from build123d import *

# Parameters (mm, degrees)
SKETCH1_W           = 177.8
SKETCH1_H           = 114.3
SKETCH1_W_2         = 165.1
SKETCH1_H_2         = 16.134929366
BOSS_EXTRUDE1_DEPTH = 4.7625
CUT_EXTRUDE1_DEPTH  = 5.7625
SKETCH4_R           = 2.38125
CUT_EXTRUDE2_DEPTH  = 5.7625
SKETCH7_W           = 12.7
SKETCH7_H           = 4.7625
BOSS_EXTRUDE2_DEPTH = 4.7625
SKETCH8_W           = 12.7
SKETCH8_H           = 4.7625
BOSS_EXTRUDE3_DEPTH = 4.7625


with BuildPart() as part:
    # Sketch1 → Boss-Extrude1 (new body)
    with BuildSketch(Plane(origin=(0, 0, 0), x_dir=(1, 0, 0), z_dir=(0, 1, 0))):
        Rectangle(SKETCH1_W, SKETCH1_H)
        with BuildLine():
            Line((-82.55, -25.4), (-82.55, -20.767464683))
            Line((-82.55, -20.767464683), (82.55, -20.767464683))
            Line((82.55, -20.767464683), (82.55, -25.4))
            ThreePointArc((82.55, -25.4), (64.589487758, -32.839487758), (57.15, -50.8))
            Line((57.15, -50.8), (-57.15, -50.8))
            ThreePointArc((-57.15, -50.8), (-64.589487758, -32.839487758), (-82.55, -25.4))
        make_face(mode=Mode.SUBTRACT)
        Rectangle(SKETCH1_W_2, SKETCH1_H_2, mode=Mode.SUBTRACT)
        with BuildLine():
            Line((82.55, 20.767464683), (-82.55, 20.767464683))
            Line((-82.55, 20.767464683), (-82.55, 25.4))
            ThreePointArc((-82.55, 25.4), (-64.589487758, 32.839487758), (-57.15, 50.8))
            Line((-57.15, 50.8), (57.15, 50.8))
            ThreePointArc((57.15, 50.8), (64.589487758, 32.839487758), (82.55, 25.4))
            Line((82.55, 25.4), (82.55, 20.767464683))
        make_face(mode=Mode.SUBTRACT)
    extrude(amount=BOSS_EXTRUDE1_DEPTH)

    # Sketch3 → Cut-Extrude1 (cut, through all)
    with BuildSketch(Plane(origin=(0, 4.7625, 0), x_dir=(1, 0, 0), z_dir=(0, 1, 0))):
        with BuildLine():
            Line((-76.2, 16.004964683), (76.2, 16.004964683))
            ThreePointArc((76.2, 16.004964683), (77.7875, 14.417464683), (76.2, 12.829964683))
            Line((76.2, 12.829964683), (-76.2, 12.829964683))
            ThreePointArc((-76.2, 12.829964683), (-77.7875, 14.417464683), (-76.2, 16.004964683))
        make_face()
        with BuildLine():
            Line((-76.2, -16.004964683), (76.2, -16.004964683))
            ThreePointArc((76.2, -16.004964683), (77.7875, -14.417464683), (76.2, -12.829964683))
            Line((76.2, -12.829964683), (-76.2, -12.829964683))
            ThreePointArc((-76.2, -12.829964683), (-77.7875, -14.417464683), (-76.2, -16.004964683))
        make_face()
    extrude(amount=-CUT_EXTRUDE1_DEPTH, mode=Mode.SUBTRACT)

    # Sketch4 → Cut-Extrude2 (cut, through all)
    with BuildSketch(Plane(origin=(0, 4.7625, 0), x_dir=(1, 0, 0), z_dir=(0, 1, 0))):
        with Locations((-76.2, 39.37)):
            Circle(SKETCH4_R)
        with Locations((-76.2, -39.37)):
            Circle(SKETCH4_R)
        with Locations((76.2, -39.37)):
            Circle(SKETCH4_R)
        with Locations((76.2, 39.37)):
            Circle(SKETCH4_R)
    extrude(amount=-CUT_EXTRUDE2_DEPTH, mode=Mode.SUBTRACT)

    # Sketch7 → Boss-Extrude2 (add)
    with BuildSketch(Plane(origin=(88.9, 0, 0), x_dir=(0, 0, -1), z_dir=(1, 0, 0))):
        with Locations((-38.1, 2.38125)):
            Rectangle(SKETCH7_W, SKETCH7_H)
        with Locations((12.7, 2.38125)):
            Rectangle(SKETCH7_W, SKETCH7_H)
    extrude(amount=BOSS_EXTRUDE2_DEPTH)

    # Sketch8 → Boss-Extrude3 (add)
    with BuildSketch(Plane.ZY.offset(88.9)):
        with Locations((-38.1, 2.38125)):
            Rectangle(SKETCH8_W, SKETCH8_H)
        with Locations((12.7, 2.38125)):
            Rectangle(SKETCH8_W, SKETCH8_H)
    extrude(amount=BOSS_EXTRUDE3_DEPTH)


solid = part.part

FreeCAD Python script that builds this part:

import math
import FreeCAD as App
import Part
import Sketcher
Q = App.Units.Quantity


def add_polygon(sketch, points):
    """Adds a closed chain of lines whose ends are joined by coincident constraints."""
    first, n = sketch.GeometryCount, len(points)
    for a, b in zip(points, points[1:] + points[:1]):
        sketch.addGeometry(Part.LineSegment(App.Vector(*a, 0), App.Vector(*b, 0)), False)
    for i in range(n):
        sketch.addConstraint(Sketcher.Constraint("Coincident", first + i, 2, first + (i + 1) % n, 1))

doc = App.newDocument("Part")
body = doc.addObject("PartDesign::Body", "Body")

sketch1 = doc.addObject("Sketcher::SketchObject", "Sketch")
body.addObject(sketch1)
sketch1.AttachmentSupport = (doc.XZ_Plane, [""])
sketch1.MapMode = "FlatFace"
add_polygon(sketch1, [(-88.9, -57.1), (-88.9, 57.1), (88.9, 57.1), (88.9, -57.1)])
sketch1.addGeometry(Part.ArcOfCircle(Part.Circle(App.Vector(-82.5, 50.8, 0), App.Vector(0, 0, 1), 25.4), math.radians(-90), math.radians(0)), False)
sketch1.addGeometry(Part.LineSegment(App.Vector(-82.5, 25.4, 0), App.Vector(-82.5, 20.8, 0)), False)
sketch1.addGeometry(Part.LineSegment(App.Vector(-82.5, 20.8, 0), App.Vector(82.5, 20.8, 0)), False)
sketch1.addGeometry(Part.LineSegment(App.Vector(82.5, 20.8, 0), App.Vector(82.5, 25.4, 0)), False)
sketch1.addGeometry(Part.ArcOfCircle(Part.Circle(App.Vector(82.5, 50.8, 0), App.Vector(0, 0, 1), 25.4), math.radians(180), math.radians(270)), False)
sketch1.addGeometry(Part.LineSegment(App.Vector(57.1, 50.8, 0), App.Vector(-57.1, 50.8, 0)), False)
add_polygon(sketch1, [(82.5, 8.1), (-82.5, 8.1), (-82.5, -8.1), (82.5, -8.1)])
sketch1.addGeometry(Part.LineSegment(App.Vector(82.5, -25.4, 0), App.Vector(82.5, -20.8, 0)), False)
sketch1.addGeometry(Part.LineSegment(App.Vector(82.5, -20.8, 0), App.Vector(-82.5, -20.8, 0)), False)
sketch1.addGeometry(Part.LineSegment(App.Vector(-82.5, -20.8, 0), App.Vector(-82.5, -25.4, 0)), False)
sketch1.addGeometry(Part.ArcOfCircle(Part.Circle(App.Vector(-82.5, -50.8, 0), App.Vector(0, 0, 1), 25.4), math.radians(0), math.radians(90)), False)
sketch1.addGeometry(Part.LineSegment(App.Vector(-57.1, -50.8, 0), App.Vector(57.1, -50.8, 0)), False)
sketch1.addGeometry(Part.ArcOfCircle(Part.Circle(App.Vector(82.5, -50.8, 0), App.Vector(0, 0, 1), 25.4), math.radians(90), math.radians(180)), False)
sketch1.addConstraint(Sketcher.Constraint("Coincident", 4, 1, 5, 1))
sketch1.addConstraint(Sketcher.Constraint("Coincident", 5, 2, 6, 1))
sketch1.addConstraint(Sketcher.Constraint("Coincident", 6, 2, 7, 1))
sketch1.addConstraint(Sketcher.Constraint("Coincident", 7, 2, 8, 2))
sketch1.addConstraint(Sketcher.Constraint("Coincident", 8, 1, 9, 1))
sketch1.addConstraint(Sketcher.Constraint("Coincident", 9, 2, 4, 2))
sketch1.addConstraint(Sketcher.Constraint("Coincident", 14, 2, 15, 1))
sketch1.addConstraint(Sketcher.Constraint("Coincident", 15, 2, 16, 1))
sketch1.addConstraint(Sketcher.Constraint("Coincident", 16, 2, 17, 2))
sketch1.addConstraint(Sketcher.Constraint("Coincident", 17, 1, 18, 1))
sketch1.addConstraint(Sketcher.Constraint("Coincident", 18, 2, 19, 2))
sketch1.addConstraint(Sketcher.Constraint("Coincident", 19, 1, 14, 1))
sketch1.addConstraint(Sketcher.Constraint("Vertical", 0))
sketch1.addConstraint(Sketcher.Constraint("Horizontal", 1))
sketch1.addConstraint(Sketcher.Constraint("Vertical", 2))
sketch1.addConstraint(Sketcher.Constraint("Horizontal", 3))
sketch1.addConstraint(Sketcher.Constraint("Vertical", 5))
sketch1.addConstraint(Sketcher.Constraint("Horizontal", 6))
sketch1.addConstraint(Sketcher.Constraint("Vertical", 7))
sketch1.addConstraint(Sketcher.Constraint("Horizontal", 9))
sketch1.addConstraint(Sketcher.Constraint("Horizontal", 10))
sketch1.addConstraint(Sketcher.Constraint("Vertical", 11))
sketch1.addConstraint(Sketcher.Constraint("Horizontal", 12))
sketch1.addConstraint(Sketcher.Constraint("Vertical", 13))
sketch1.addConstraint(Sketcher.Constraint("Vertical", 14))
sketch1.addConstraint(Sketcher.Constraint("Horizontal", 15))
sketch1.addConstraint(Sketcher.Constraint("Vertical", 16))
sketch1.addConstraint(Sketcher.Constraint("Horizontal", 18))
sketch1.addConstraint(Sketcher.Constraint("Equal", 4, 8))
sketch1.addConstraint(Sketcher.Constraint("Equal", 8, 17))
sketch1.addConstraint(Sketcher.Constraint("Equal", 17, 19))
sketch1.addConstraint(Sketcher.Constraint("Symmetric", 8, 3, 17, 3, -1, 1))
sketch1.addConstraint(Sketcher.Constraint("Symmetric", 4, 3, 19, 3, -1, 1))
sketch1.addConstraint(Sketcher.Constraint("Symmetric", 0, 2, 2, 2, -1, 1))
sketch1.addConstraint(Sketcher.Constraint("Symmetric", 10, 2, 12, 2, -1, 1))
sketch1.addConstraint(Sketcher.Constraint("Symmetric", 5, 2, 14, 2, -1, 1))
sketch1.addConstraint(Sketcher.Constraint("Symmetric", 4, 3, 8, 3, -2))
sketch1.addConstraint(Sketcher.Constraint("Horizontal", 4, 3, 8, 1))
sketch1.addConstraint(Sketcher.Constraint("Horizontal", 19, 3, 17, 1))
sketch1.addConstraint(Sketcher.Constraint("Vertical", 17, 3, 4, 1))
sketch1.addConstraint(Sketcher.Constraint("Vertical", 19, 3, 6, 2))
sketch1.addConstraint(Sketcher.Constraint("Vertical", 5, 2, 10, 2))
sketch1.addConstraint(Sketcher.Constraint("Vertical", 11, 2, 15, 2))
sketch1.addConstraint(Sketcher.Constraint("Equal", 18, 0))
sketch1.addConstraint(Sketcher.Constraint("Radius", 4, Q("1 in")))
sketch1.addConstraint(Sketcher.Constraint("DistanceX", 1, 1, 1, 2, Q("7 in")))
sketch1.addConstraint(Sketcher.Constraint("DistanceX", 6, 1, 6, 2, Q("6.5 in")))
sketch1.addConstraint(Sketcher.Constraint("DistanceY", -1, 1, 4, 3, Q("2 in")))
sketch1.addConstraint(Sketcher.Constraint("DistanceY", 10, 2, 5, 2, Q("0.5 in")))
sketch1.addConstraint(Sketcher.Constraint("DistanceY", 11, 2, 11, 1, Q("16.134929 mm")))
pad1 = doc.addObject("PartDesign::Pad", "Pad")
body.addObject(pad1)
pad1.Profile = sketch1
pad1.Length = Q("0.1875 in")
pad1.Reversed = True

sketch2 = doc.addObject("Sketcher::SketchObject", "Sketch001")
body.addObject(sketch2)
sketch2.AttachmentSupport = (doc.XZ_Plane, [""])
sketch2.MapMode = "FlatFace"
sketch2.AttachmentOffset = App.Placement(App.Vector(0, 0, -0.1875 * 25.4), App.Rotation())
sketch2.addGeometry(Part.LineSegment(App.Vector(76.2, -16, 0), App.Vector(-76.2, -16, 0)), False)
sketch2.addGeometry(Part.ArcOfCircle(Part.Circle(App.Vector(-76.2, -14.4, 0), App.Vector(0, 0, 1), 1.6), math.radians(90), math.radians(270)), False)
sketch2.addGeometry(Part.LineSegment(App.Vector(-76.2, -12.8, 0), App.Vector(76.2, -12.8, 0)), False)
sketch2.addGeometry(Part.ArcOfCircle(Part.Circle(App.Vector(76.2, -14.4, 0), App.Vector(0, 0, 1), 1.6), math.radians(-90), math.radians(90)), False)
sketch2.addGeometry(Part.LineSegment(App.Vector(-76.2, 16, 0), App.Vector(76.2, 16, 0)), False)
sketch2.addGeometry(Part.ArcOfCircle(Part.Circle(App.Vector(76.2, 14.4, 0), App.Vector(0, 0, 1), 1.6), math.radians(-90), math.radians(90)), False)
sketch2.addGeometry(Part.LineSegment(App.Vector(76.2, 12.8, 0), App.Vector(-76.2, 12.8, 0)), False)
sketch2.addGeometry(Part.ArcOfCircle(Part.Circle(App.Vector(-76.2, 14.4, 0), App.Vector(0, 0, 1), 1.6), math.radians(90), math.radians(270)), False)
sketch2.addConstraint(Sketcher.Constraint("Tangent", 0, 2, 1, 2))
sketch2.addConstraint(Sketcher.Constraint("Tangent", 1, 1, 2, 1))
sketch2.addConstraint(Sketcher.Constraint("Tangent", 2, 2, 3, 2))
sketch2.addConstraint(Sketcher.Constraint("Tangent", 3, 1, 0, 1))
sketch2.addConstraint(Sketcher.Constraint("Tangent", 4, 2, 5, 2))
sketch2.addConstraint(Sketcher.Constraint("Tangent", 5, 1, 6, 1))
sketch2.addConstraint(Sketcher.Constraint("Tangent", 6, 2, 7, 2))
sketch2.addConstraint(Sketcher.Constraint("Tangent", 7, 1, 4, 1))
sketch2.addConstraint(Sketcher.Constraint("Horizontal", 0))
sketch2.addConstraint(Sketcher.Constraint("Horizontal", 2))
sketch2.addConstraint(Sketcher.Constraint("Horizontal", 4))
sketch2.addConstraint(Sketcher.Constraint("Horizontal", 6))
sketch2.addConstraint(Sketcher.Constraint("Equal", 3, 5))
sketch2.addConstraint(Sketcher.Constraint("Symmetric", 1, 3, 5, 3, -1, 1))
sketch2.addConstraint(Sketcher.Constraint("Vertical", 3, 3, 5, 3))
sketch2.addConstraint(Sketcher.Constraint("Vertical", 1, 3, 7, 3))
sketch2.addConstraint(Sketcher.Constraint("DistanceX", 0, 2, 0, 1, Q("6 in")))
sketch2.addConstraint(Sketcher.Constraint("Radius", 1, Q("0.0625 in")))
sketch2.addConstraint(Sketcher.Constraint("DistanceY", 3, 3, 5, 3, Q("28.834929 mm")))
pocket1 = doc.addObject("PartDesign::Pocket", "Pocket")
body.addObject(pocket1)
pocket1.Profile = sketch2
pocket1.Type = "ThroughAll"
pocket1.Reversed = True

sketch3 = doc.addObject("Sketcher::SketchObject", "Sketch002")
body.addObject(sketch3)
sketch3.AttachmentSupport = (doc.XZ_Plane, [""])
sketch3.MapMode = "FlatFace"
sketch3.AttachmentOffset = App.Placement(App.Vector(0, 0, -0.1875 * 25.4), App.Rotation())
sketch3.addGeometry(Part.Circle(App.Vector(-76.2, -39.4, 0), App.Vector(0, 0, 1), 2.4), False)
sketch3.addGeometry(Part.Circle(App.Vector(-76.2, 39.4, 0), App.Vector(0, 0, 1), 2.4), False)
sketch3.addGeometry(Part.Circle(App.Vector(76.2, 39.4, 0), App.Vector(0, 0, 1), 2.4), False)
sketch3.addGeometry(Part.Circle(App.Vector(76.2, -39.4, 0), App.Vector(0, 0, 1), 2.4), False)
sketch3.addConstraint(Sketcher.Constraint("Equal", 0, 1))
sketch3.addConstraint(Sketcher.Constraint("Equal", 1, 2))
sketch3.addConstraint(Sketcher.Constraint("Equal", 2, 3))
sketch3.addConstraint(Sketcher.Constraint("Symmetric", 0, 3, 2, 3, -1, 1))
sketch3.addConstraint(Sketcher.Constraint("Symmetric", 1, 3, 3, 3, -1, 1))
sketch3.addConstraint(Sketcher.Constraint("Symmetric", 1, 3, 2, 3, -2))
sketch3.addConstraint(Sketcher.Constraint("Diameter", 0, Q("0.1875 in")))
sketch3.addConstraint(Sketcher.Constraint("DistanceX", 0, 3, -1, 1, Q("3 in")))
sketch3.addConstraint(Sketcher.Constraint("DistanceY", 0, 3, 1, 3, Q("3.1 in")))
pocket2 = doc.addObject("PartDesign::Pocket", "Pocket001")
body.addObject(pocket2)
pocket2.Profile = sketch3
pocket2.Type = "ThroughAll"
pocket2.Reversed = True

sketch4 = doc.addObject("Sketcher::SketchObject", "Sketch003")
body.addObject(sketch4)
sketch4.AttachmentSupport = (doc.YZ_Plane, [""])
sketch4.MapMode = "FlatFace"
sketch4.AttachmentOffset = App.Placement(App.Vector(0, 0, 3.5 * 25.4), App.Rotation())
add_polygon(sketch4, [(4.8, 44.5), (0, 44.5), (0, 31.8), (4.8, 31.8)])
add_polygon(sketch4, [(4.8, -6.3), (0, -6.3), (0, -19.1), (4.8, -19.1)])
sketch4.addConstraint(Sketcher.Constraint("Horizontal", 0))
sketch4.addConstraint(Sketcher.Constraint("Vertical", 1))
sketch4.addConstraint(Sketcher.Constraint("Horizontal", 2))
sketch4.addConstraint(Sketcher.Constraint("Vertical", 3))
sketch4.addConstraint(Sketcher.Constraint("Horizontal", 4))
sketch4.addConstraint(Sketcher.Constraint("Vertical", 5))
sketch4.addConstraint(Sketcher.Constraint("Horizontal", 6))
sketch4.addConstraint(Sketcher.Constraint("Vertical", 7))
sketch4.addConstraint(Sketcher.Constraint("PointOnObject", 0, 2, -2))
sketch4.addConstraint(Sketcher.Constraint("PointOnObject", 4, 2, -2))
sketch4.addConstraint(Sketcher.Constraint("Vertical", 3, 2, 6, 2))
sketch4.addConstraint(Sketcher.Constraint("Equal", 3, 5))
sketch4.addConstraint(Sketcher.Constraint("DistanceY", 1, 2, 1, 1, Q("0.5 in")))
sketch4.addConstraint(Sketcher.Constraint("DistanceY", 4, 2, 0, 2, Q("2 in")))
sketch4.addConstraint(Sketcher.Constraint("DistanceX", 0, 2, 0, 1, Q("0.1875 in")))
sketch4.addConstraint(Sketcher.Constraint("DistanceY", -1, 1, 0, 2, Q("1.75 in")))
pad2 = doc.addObject("PartDesign::Pad", "Pad001")
body.addObject(pad2)
pad2.Profile = sketch4
pad2.Length = Q("0.1875 in")

sketch5 = doc.addObject("Sketcher::SketchObject", "Sketch004")
body.addObject(sketch5)
sketch5.AttachmentSupport = (doc.YZ_Plane, [""])
sketch5.MapMode = "FlatFace"
sketch5.AttachmentOffset = App.Placement(App.Vector(0, 0, -3.5 * 25.4), App.Rotation())
add_polygon(sketch5, [(4.8, -44.5), (0, -44.5), (0, -31.8), (4.8, -31.8)])
add_polygon(sketch5, [(4.8, 6.3), (0, 6.3), (0, 19.1), (4.8, 19.1)])
sketch5.addConstraint(Sketcher.Constraint("Horizontal", 0))
sketch5.addConstraint(Sketcher.Constraint("Vertical", 1))
sketch5.addConstraint(Sketcher.Constraint("Horizontal", 2))
sketch5.addConstraint(Sketcher.Constraint("Vertical", 3))
sketch5.addConstraint(Sketcher.Constraint("Horizontal", 4))
sketch5.addConstraint(Sketcher.Constraint("Vertical", 5))
sketch5.addConstraint(Sketcher.Constraint("Horizontal", 6))
sketch5.addConstraint(Sketcher.Constraint("Vertical", 7))
sketch5.addConstraint(Sketcher.Constraint("PointOnObject", 0, 2, -2))
sketch5.addConstraint(Sketcher.Constraint("PointOnObject", 4, 2, -2))
sketch5.addConstraint(Sketcher.Constraint("Vertical", 3, 2, 6, 2))
sketch5.addConstraint(Sketcher.Constraint("Equal", 3, 5))
sketch5.addConstraint(Sketcher.Constraint("DistanceY", 1, 1, 1, 2, Q("0.5 in")))
sketch5.addConstraint(Sketcher.Constraint("DistanceY", 0, 2, 4, 2, Q("2 in")))
sketch5.addConstraint(Sketcher.Constraint("DistanceX", 0, 2, 0, 1, Q("0.1875 in")))
sketch5.addConstraint(Sketcher.Constraint("DistanceY", 0, 2, -1, 1, Q("1.75 in")))
pad3 = doc.addObject("PartDesign::Pad", "Pad002")
body.addObject(pad3)
pad3.Profile = sketch5
pad3.Length = Q("0.1875 in")
pad3.Reversed = True

doc.recompute()
